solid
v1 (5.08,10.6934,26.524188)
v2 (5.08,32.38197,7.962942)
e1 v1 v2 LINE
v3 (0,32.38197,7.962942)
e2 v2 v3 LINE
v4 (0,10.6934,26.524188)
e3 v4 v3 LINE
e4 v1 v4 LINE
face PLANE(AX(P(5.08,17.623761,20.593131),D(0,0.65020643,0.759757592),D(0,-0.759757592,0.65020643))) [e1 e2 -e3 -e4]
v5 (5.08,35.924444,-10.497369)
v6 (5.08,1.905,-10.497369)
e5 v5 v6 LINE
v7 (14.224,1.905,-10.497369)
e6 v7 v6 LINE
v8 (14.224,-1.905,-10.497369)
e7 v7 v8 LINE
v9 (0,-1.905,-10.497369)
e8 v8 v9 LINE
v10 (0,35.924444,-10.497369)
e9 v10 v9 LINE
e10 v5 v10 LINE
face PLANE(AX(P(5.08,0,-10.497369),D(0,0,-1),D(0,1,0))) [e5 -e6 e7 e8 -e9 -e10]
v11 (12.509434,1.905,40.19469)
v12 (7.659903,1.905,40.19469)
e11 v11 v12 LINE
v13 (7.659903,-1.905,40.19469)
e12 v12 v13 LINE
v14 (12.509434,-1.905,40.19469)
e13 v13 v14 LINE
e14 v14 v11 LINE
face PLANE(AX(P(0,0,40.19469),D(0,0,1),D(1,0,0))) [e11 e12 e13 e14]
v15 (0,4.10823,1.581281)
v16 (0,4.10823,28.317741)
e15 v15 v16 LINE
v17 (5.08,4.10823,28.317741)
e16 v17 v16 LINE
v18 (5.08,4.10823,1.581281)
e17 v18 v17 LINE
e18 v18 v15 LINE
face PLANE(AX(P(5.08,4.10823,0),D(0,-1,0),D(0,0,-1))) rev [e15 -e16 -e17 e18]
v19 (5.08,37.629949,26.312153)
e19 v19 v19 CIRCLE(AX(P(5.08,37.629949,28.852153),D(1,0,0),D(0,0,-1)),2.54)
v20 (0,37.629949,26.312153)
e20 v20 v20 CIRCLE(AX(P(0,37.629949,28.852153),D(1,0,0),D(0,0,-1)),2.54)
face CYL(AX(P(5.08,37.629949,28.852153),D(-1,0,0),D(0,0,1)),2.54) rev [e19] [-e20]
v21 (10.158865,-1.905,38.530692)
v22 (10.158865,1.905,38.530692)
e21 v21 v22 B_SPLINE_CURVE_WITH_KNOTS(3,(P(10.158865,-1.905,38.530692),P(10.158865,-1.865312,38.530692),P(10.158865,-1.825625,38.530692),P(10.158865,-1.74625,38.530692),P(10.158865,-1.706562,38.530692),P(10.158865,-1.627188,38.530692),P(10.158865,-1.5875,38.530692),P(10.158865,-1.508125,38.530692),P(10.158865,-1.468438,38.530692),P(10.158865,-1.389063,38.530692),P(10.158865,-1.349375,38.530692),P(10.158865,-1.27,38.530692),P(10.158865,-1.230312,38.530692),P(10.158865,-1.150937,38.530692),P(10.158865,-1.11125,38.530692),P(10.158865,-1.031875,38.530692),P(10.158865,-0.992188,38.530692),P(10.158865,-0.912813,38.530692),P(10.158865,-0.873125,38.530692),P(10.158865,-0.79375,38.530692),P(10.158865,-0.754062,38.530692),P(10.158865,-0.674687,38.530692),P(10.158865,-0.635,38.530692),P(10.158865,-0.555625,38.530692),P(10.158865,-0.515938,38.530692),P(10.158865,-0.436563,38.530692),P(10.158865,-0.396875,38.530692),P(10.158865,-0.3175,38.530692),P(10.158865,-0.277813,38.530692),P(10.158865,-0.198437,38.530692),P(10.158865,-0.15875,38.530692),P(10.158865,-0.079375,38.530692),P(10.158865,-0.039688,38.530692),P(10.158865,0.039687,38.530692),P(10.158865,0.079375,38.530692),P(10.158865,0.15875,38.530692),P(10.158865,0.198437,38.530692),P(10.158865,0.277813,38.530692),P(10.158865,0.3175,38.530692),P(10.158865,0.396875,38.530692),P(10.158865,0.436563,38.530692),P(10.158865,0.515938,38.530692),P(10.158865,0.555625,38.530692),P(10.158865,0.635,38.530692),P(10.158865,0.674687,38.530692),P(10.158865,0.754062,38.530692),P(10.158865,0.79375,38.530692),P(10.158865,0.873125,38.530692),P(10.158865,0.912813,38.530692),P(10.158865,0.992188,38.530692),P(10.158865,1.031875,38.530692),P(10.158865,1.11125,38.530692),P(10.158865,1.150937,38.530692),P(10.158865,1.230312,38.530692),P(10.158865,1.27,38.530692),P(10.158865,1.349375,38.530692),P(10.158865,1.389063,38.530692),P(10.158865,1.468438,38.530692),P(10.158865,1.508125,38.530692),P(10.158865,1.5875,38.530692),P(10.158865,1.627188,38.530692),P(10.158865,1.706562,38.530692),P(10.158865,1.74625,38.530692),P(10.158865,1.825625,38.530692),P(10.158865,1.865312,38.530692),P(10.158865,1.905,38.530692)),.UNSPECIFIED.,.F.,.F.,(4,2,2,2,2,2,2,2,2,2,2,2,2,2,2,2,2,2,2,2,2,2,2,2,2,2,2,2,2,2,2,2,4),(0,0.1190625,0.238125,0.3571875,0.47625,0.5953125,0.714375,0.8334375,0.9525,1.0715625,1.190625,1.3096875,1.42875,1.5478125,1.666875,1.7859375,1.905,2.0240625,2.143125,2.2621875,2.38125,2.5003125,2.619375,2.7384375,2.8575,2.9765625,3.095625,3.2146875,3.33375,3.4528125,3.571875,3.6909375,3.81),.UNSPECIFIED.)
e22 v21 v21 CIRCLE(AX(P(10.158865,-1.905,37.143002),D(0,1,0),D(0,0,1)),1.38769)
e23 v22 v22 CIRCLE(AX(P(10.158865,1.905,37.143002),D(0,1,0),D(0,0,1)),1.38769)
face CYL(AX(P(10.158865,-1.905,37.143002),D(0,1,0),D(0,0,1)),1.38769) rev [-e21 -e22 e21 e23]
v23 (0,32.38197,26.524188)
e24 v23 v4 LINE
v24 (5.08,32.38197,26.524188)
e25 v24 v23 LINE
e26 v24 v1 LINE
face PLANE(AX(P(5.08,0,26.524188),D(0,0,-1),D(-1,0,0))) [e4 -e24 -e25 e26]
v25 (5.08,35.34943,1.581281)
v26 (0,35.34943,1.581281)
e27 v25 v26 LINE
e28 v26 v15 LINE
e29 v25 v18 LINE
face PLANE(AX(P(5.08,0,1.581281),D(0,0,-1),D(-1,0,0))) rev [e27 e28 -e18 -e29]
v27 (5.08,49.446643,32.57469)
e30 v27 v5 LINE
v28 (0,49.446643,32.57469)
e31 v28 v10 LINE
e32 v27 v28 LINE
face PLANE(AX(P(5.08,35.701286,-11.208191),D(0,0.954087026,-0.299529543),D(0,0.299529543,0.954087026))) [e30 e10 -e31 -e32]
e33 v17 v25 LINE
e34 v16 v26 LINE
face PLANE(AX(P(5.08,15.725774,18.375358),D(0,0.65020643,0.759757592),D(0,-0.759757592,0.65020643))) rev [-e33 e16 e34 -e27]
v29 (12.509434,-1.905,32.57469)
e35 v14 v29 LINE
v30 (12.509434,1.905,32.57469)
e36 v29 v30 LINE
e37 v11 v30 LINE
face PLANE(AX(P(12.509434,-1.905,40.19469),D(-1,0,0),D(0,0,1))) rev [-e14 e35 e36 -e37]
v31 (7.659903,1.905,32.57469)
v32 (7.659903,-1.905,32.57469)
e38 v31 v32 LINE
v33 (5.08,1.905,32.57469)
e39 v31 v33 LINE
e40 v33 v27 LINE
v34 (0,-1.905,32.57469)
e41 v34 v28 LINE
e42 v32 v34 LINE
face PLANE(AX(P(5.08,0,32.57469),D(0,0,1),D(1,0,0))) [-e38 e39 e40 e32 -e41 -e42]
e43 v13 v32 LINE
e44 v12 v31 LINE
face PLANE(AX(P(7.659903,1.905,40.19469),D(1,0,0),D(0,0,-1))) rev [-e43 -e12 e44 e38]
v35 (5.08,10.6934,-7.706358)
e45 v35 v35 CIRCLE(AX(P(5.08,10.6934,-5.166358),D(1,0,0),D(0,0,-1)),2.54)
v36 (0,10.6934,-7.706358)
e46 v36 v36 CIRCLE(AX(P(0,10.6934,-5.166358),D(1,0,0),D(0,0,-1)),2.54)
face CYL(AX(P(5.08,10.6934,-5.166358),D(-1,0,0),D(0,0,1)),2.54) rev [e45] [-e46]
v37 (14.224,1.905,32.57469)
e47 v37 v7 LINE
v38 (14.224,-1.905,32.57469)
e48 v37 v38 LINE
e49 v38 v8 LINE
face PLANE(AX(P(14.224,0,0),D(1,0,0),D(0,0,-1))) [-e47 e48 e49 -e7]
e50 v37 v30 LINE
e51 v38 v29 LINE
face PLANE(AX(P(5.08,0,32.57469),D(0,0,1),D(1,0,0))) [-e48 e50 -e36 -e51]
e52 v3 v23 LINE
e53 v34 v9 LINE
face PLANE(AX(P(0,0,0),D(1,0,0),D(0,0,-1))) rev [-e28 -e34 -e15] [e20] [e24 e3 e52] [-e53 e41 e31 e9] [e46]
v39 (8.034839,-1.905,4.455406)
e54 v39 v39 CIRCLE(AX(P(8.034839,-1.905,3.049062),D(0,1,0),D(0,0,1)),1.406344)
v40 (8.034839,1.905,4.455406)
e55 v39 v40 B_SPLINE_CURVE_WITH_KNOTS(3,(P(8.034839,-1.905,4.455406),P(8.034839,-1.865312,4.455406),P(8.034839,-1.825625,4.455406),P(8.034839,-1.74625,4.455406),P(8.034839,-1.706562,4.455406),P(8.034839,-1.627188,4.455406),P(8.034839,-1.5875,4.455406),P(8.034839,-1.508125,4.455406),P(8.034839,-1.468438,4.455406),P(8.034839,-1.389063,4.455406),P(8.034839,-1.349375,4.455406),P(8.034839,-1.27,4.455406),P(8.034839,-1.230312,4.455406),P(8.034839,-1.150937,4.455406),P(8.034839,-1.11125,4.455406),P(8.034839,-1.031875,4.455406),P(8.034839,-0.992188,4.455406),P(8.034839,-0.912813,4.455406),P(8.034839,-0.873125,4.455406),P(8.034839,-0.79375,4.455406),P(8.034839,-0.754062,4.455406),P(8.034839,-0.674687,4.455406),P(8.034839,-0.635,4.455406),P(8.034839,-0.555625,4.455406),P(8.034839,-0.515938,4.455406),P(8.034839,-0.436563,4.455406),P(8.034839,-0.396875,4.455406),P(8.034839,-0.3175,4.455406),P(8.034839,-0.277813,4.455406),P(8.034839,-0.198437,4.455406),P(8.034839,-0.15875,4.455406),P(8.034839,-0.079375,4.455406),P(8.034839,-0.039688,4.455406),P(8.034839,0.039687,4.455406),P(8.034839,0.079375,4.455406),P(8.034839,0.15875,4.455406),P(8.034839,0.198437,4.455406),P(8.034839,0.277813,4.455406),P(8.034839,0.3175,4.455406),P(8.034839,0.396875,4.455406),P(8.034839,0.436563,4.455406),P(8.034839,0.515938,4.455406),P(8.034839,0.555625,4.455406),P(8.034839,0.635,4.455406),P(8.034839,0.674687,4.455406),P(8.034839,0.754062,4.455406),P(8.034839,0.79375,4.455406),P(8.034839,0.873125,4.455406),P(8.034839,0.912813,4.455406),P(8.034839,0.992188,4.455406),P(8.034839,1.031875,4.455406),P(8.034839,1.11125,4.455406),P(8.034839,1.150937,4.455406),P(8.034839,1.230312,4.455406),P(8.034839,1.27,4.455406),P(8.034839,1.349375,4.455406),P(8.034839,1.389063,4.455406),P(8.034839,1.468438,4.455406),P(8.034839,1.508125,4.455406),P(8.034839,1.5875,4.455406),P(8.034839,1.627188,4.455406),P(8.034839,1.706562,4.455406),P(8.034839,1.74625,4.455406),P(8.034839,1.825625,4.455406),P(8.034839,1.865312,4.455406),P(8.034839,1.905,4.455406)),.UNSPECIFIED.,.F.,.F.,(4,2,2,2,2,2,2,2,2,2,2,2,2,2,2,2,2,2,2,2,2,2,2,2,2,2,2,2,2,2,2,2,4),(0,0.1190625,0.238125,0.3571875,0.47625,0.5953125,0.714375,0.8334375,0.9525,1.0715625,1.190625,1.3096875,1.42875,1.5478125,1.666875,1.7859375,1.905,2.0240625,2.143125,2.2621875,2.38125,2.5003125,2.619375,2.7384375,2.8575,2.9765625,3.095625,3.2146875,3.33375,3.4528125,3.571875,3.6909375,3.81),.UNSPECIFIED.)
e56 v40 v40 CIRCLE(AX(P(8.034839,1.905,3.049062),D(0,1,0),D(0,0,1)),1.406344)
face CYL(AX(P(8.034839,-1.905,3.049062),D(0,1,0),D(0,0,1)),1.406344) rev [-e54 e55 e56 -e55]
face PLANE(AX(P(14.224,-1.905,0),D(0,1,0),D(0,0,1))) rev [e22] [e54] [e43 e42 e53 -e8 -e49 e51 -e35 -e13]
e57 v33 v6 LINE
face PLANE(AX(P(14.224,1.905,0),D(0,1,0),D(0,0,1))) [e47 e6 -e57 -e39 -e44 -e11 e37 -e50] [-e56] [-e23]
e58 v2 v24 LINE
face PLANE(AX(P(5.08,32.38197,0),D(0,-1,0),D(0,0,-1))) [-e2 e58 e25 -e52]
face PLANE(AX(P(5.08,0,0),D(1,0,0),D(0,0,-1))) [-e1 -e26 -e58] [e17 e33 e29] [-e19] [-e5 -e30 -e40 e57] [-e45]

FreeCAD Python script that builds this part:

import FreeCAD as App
import Part
import Sketcher
from FreeCAD import Vector
Q = App.Units.Quantity

doc = App.newDocument("Part")
body = doc.addObject("PartDesign::Body", "Body")

# Sketch on YZ plane
sketch1 = body.newObject("Sketcher::SketchObject", "Sketch")
sketch1.AttachmentSupport = (doc.getObject("YZ_Plane"), [""])
sketch1.MapMode = "FlatFace"
sketch1.addGeometry([
    Part.LineSegment(Vector(49.446643, 32.57469, 0), Vector(1.905, 32.57469, 0)),  # 0
    Part.LineSegment(Vector(1.905, 32.57469, 0), Vector(1.905, -10.497369, 0)),  # 1
    Part.LineSegment(Vector(1.905, -10.497369, 0), Vector(35.924444, -10.497369, 0)),  # 2
    Part.LineSegment(Vector(35.924444, -10.497369, 0), Vector(49.446643, 32.57469, 0)),  # 3
    Part.Circle(Vector(10.6934, -5.166358, 0), Vector(0, 0, 1), 2.54),  # 4
    Part.LineSegment(Vector(35.34943, 1.581281, 0), Vector(4.10823, 1.581281, 0)),  # 5
    Part.LineSegment(Vector(4.10823, 1.581281, 0), Vector(4.10823, 28.317741, 0)),  # 6
    Part.LineSegment(Vector(4.10823, 28.317741, 0), Vector(35.34943, 1.581281, 0)),  # 7
    Part.LineSegment(Vector(32.38197, 26.524188, 0), Vector(32.38197, 7.962942, 0)),  # 8
    Part.LineSegment(Vector(32.38197, 7.962942, 0), Vector(10.6934, 26.524188, 0)),  # 9
    Part.LineSegment(Vector(10.6934, 26.524188, 0), Vector(32.38197, 26.524188, 0)),  # 10
    Part.Circle(Vector(37.629949, 28.852153, 0), Vector(0, 0, 1), 2.54),  # 11
], False)
sketch1.addConstraint([
    Sketcher.Constraint("Coincident", 0, 2, 1, 1),
    Sketcher.Constraint("Coincident", 1, 2, 2, 1),
    Sketcher.Constraint("Coincident", 2, 2, 3, 1),
    Sketcher.Constraint("Coincident", 3, 2, 0, 1),
    Sketcher.Constraint("Coincident", 5, 2, 6, 1),
    Sketcher.Constraint("Coincident", 6, 2, 7, 1),
    Sketcher.Constraint("Coincident", 7, 2, 5, 1),
    Sketcher.Constraint("Coincident", 8, 2, 9, 1),
    Sketcher.Constraint("Coincident", 9, 2, 10, 1),
    Sketcher.Constraint("Coincident", 10, 2, 8, 1),
    Sketcher.Constraint("Horizontal", 0),
    Sketcher.Constraint("Vertical", 1),
    Sketcher.Constraint("Horizontal", 2),
    Sketcher.Constraint("Horizontal", 5),
    Sketcher.Constraint("Vertical", 6),
    Sketcher.Constraint("Vertical", 8),
    Sketcher.Constraint("Horizontal", 10),
    Sketcher.Constraint("Equal", 4, 11),
    Sketcher.Constraint("Parallel", 7, 9),
    Sketcher.Constraint("Vertical", 4, 3, 9, 2),
    Sketcher.Constraint("Diameter", 4, Q("0.2 in")),
    Sketcher.Constraint("DistanceX", -1, 1, 4, 3, Q("0.421 in")),
    Sketcher.Constraint("DistanceX", -1, 1, 0, 2, Q("0.075 in")),
    Sketcher.Constraint("DistanceX", 5, 2, 5, 1, Q("31.2412 mm")),
    Sketcher.Constraint("DistanceY", 4, 3, -1, 1, Q("0.2033999 in")),
    Sketcher.Constraint("DistanceX", 10, 1, 10, 2, Q("21.68857 mm")),
    Sketcher.Constraint("DistanceY", 1, 2, 1, 1, Q("43.072059 mm")),
    Sketcher.Constraint("DistanceY", 6, 1, 6, 2, Q("26.736461 mm")),
    Sketcher.Constraint("DistanceX", 2, 2, 3, 2, Q("13.522198 mm")),
    Sketcher.Constraint("DistanceY", 4, 3, 6, 2, Q("33.484099 mm")),
    Sketcher.Constraint("DistanceY", 4, 3, 8, 2, Q("13.1293 mm")),
    Sketcher.Constraint("DistanceX", 0, 2, 0, 1, Q("47.541643 mm")),
    Sketcher.Constraint("DistanceX", -1, 1, 11, 3, Q("37.629949 mm")),
    Sketcher.Constraint("DistanceY", -1, 1, 0, 2, Q("32.57469 mm")),
    Sketcher.Constraint("DistanceX", -1, 1, 5, 2, Q("4.10823 mm")),
    Sketcher.Constraint("DistanceY", 4, 3, 11, 3, Q("34.018511 mm")),
])
pad1 = body.newObject("PartDesign::Pad", "Pad")
pad1.Profile = sketch1
pad1.Length = Q("0.2 in")

# Sketch on YZ plane
sketch2 = body.newObject("Sketcher::SketchObject", "Sketch001")
sketch2.AttachmentSupport = (doc.getObject("YZ_Plane"), [""])
sketch2.MapMode = "FlatFace"
sketch2.addGeometry([
    Part.LineSegment(Vector(1.905, 32.57469, 0), Vector(-1.905, 32.57469, 0)),
    Part.LineSegment(Vector(-1.905, 32.57469, 0), Vector(-1.905, -10.497369, 0)),
    Part.LineSegment(Vector(-1.905, -10.497369, 0), Vector(1.905, -10.497369, 0)),
    Part.LineSegment(Vector(1.905, -10.497369, 0), Vector(1.905, 32.57469, 0)),
], False)
sketch2.addConstraint([
    Sketcher.Constraint("Coincident", 0, 2, 1, 1),
    Sketcher.Constraint("Coincident", 1, 2, 2, 1),
    Sketcher.Constraint("Coincident", 2, 2, 3, 1),
    Sketcher.Constraint("Coincident", 3, 2, 0, 1),
    Sketcher.Constraint("Horizontal", 0),
    Sketcher.Constraint("Vertical", 1),
    Sketcher.Constraint("Horizontal", 2),
    Sketcher.Constraint("Vertical", 3),
    Sketcher.Constraint("DistanceX", 0, 2, 0, 1, Q("0.15 in")),
    Sketcher.Constraint("DistanceX", 0, 2, -1, 1, Q("0.075 in")),
    Sketcher.Constraint("DistanceY", 1, 2, 1, 1, Q("43.072059 mm")),
    Sketcher.Constraint("DistanceY", -1, 1, 0, 2, Q("32.57469 mm")),
])
pad2 = body.newObject("PartDesign::Pad", "Pad001")
pad2.Profile = sketch2
pad2.Length = Q("0.56 in")

# Sketch on XZ plane
sketch3 = body.newObject("Sketcher::SketchObject", "Sketch002")
sketch3.AttachmentSupport = (doc.getObject("XZ_Plane"), [""])
sketch3.MapMode = "FlatFace"
sketch3.AttachmentOffset = App.Placement(Vector(0, 0, -0.075 * 25.4), App.Rotation())
sketch3.addGeometry(Part.Circle(Vector(8.034839, 3.049062, 0), Vector(0, 0, 1), 1.406344), False)
sketch3.addConstraint([
    Sketcher.Constraint("Diameter", 0, Q("2.812688 mm")),
    Sketcher.Constraint("DistanceX", -1, 1, 0, 3, Q("8.034839 mm")),
    Sketcher.Constraint("DistanceY", -1, 1, 0, 3, Q("3.049062 mm")),
])
pocket1 = body.newObject("PartDesign::Pocket", "Pocket")
pocket1.Profile = sketch3
pocket1.Type = "ThroughAll"
pocket1.Reversed = True

# Sketch on XY plane
sketch4 = body.newObject("Sketcher::SketchObject", "Sketch003")
sketch4.AttachmentSupport = (doc.getObject("XY_Plane"), [""])
sketch4.MapMode = "FlatFace"
sketch4.AttachmentOffset = App.Placement(Vector(0, 0, 32.57469), App.Rotation())
sketch4.addGeometry([
    Part.LineSegment(Vector(7.659903, 1.905, 0), Vector(7.659903, -1.905, 0)),
    Part.LineSegment(Vector(7.659903, -1.905, 0), Vector(12.509434, -1.905, 0)),
    Part.LineSegment(Vector(12.509434, -1.905, 0), Vector(12.509434, 1.905, 0)),
    Part.LineSegment(Vector(12.509434, 1.905, 0), Vector(7.659903, 1.905, 0)),
], False)
sketch4.addConstraint([
    Sketcher.Constraint("Coincident", 0, 2, 1, 1),
    Sketcher.Constraint("Coincident", 1, 2, 2, 1),
    Sketcher.Constraint("Coincident", 2, 2, 3, 1),
    Sketcher.Constraint("Coincident", 3, 2, 0, 1),
    Sketcher.Constraint("Vertical", 0),
    Sketcher.Constraint("Horizontal", 1),
    Sketcher.Constraint("Vertical", 2),
    Sketcher.Constraint("Horizontal", 3),
    Sketcher.Constraint("DistanceY", 0, 2, 0, 1, Q("0.15 in")),
    Sketcher.Constraint("DistanceY", 0, 2, -1, 1, Q("0.075 in")),
    Sketcher.Constraint("DistanceX", 1, 1, 1, 2, Q("4.849531 mm")),
    Sketcher.Constraint("DistanceX", -1, 1, 0, 2, Q("7.659903 mm")),
])
pad3 = body.newObject("PartDesign::Pad", "Pad002")
pad3.Profile = sketch4
pad3.Length = Q("0.3 in")

# Sketch on XZ plane
sketch5 = body.newObject("Sketcher::SketchObject", "Sketch004")
sketch5.AttachmentSupport = (doc.getObject("XZ_Plane"), [""])
sketch5.MapMode = "FlatFace"
sketch5.AttachmentOffset = App.Placement(Vector(0, 0, -0.075 * 25.4), App.Rotation())
sketch5.addGeometry(Part.Circle(Vector(10.158865, 37.143002, 0), Vector(0, 0, 1), 1.38769), False)
sketch5.addConstraint([
    Sketcher.Constraint("Diameter", 0, Q("2.77538 mm")),
    Sketcher.Constraint("DistanceY", -1, 1, 0, 3, Q("37.143002 mm")),
    Sketcher.Constraint("DistanceX", -1, 1, 0, 3, Q("10.158865 mm")),
])
pocket2 = body.newObject("PartDesign::Pocket", "Pocket001")
pocket2.Profile = sketch5
pocket2.Type = "ThroughAll"
pocket2.Reversed = True

doc.recompute()
